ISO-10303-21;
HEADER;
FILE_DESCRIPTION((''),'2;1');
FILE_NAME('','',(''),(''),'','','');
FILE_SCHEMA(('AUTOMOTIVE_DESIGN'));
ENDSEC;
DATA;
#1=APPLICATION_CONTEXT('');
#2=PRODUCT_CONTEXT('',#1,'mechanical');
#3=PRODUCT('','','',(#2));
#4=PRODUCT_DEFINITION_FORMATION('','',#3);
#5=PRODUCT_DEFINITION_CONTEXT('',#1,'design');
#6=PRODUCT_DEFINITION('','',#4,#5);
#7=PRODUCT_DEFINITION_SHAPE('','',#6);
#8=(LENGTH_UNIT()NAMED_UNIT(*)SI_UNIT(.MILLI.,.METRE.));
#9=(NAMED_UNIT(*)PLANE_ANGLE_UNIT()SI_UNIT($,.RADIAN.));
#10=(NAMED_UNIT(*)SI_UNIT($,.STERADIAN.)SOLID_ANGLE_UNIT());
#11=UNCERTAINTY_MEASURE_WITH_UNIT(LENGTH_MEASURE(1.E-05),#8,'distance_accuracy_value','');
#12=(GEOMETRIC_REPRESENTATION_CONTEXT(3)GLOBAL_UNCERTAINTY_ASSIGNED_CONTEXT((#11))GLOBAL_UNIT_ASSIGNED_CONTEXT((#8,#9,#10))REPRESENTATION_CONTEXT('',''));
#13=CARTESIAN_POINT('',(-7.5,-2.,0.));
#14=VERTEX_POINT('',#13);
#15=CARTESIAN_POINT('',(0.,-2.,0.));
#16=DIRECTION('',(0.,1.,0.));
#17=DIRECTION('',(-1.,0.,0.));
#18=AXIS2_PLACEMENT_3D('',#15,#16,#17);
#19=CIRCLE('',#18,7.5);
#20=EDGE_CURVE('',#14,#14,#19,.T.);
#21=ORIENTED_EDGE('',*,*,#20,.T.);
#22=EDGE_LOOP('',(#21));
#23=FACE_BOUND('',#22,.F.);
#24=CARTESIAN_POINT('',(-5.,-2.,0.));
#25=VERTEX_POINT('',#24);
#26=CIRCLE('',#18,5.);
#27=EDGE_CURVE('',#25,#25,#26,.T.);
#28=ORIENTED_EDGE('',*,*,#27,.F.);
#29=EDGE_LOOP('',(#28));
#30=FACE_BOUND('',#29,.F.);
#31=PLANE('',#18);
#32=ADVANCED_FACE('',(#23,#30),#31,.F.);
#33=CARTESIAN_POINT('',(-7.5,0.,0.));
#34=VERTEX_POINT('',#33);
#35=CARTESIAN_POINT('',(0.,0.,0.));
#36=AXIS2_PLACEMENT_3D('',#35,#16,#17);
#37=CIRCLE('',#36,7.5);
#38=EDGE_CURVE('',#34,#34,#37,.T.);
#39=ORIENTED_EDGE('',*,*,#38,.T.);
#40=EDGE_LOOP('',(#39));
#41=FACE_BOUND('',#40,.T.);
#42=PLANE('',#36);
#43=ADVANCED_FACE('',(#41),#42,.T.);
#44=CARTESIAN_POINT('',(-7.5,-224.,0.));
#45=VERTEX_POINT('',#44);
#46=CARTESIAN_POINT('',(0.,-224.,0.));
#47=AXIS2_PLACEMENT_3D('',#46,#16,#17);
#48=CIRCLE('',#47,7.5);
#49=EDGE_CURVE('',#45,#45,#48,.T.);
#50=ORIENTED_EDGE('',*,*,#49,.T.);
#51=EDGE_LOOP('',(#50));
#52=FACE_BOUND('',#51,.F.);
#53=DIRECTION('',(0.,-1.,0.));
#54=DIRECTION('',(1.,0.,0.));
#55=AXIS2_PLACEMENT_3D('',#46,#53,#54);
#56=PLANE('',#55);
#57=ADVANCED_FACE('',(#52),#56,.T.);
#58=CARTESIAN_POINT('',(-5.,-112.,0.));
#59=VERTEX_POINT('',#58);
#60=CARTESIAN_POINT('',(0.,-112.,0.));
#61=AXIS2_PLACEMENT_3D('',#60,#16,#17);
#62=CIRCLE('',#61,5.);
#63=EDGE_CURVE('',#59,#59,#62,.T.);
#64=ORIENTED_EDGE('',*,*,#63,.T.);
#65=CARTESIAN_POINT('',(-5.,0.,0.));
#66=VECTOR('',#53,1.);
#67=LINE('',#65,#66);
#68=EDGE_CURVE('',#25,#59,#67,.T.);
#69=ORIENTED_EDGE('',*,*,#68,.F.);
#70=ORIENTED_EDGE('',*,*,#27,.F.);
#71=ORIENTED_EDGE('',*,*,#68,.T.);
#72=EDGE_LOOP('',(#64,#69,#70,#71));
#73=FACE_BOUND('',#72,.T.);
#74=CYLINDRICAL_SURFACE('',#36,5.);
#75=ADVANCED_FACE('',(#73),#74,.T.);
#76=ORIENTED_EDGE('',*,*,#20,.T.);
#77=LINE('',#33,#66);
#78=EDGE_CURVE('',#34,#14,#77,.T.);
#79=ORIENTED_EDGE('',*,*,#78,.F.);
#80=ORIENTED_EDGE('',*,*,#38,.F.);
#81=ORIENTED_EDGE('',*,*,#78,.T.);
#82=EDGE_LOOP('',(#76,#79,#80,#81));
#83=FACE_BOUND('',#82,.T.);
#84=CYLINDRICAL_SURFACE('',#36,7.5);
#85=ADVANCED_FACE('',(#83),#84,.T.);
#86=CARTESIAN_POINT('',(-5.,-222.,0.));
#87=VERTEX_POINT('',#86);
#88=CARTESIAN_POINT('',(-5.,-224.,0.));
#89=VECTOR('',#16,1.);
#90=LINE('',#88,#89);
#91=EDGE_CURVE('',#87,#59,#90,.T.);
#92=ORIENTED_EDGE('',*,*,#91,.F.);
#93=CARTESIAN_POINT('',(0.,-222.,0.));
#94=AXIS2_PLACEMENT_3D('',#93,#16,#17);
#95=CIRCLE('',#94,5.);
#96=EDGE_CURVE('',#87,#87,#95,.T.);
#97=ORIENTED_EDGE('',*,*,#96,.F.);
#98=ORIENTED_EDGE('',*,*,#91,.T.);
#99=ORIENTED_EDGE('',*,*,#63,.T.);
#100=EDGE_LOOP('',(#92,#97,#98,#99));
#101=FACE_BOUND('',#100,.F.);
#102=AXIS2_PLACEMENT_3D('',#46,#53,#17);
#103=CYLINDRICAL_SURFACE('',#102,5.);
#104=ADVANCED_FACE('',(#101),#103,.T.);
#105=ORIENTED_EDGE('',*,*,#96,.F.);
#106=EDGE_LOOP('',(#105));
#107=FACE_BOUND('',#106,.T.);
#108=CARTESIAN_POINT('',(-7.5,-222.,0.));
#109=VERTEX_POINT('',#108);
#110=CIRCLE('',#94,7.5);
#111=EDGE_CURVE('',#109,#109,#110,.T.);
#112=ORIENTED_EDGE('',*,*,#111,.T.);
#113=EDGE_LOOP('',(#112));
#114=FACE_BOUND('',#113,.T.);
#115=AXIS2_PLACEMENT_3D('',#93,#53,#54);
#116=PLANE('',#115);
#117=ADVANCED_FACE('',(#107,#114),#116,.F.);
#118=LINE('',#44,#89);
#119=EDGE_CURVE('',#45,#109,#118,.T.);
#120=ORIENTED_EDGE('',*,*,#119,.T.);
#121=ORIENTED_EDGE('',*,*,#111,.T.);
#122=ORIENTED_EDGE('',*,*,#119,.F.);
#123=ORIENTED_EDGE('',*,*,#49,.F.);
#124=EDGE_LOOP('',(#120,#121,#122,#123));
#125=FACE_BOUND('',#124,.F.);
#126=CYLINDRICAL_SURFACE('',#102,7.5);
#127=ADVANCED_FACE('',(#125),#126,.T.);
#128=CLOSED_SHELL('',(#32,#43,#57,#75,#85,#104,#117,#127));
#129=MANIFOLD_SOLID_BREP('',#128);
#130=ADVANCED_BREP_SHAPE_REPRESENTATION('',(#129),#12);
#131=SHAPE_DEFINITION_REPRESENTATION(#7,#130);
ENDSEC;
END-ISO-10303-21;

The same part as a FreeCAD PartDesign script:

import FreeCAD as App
import Part
import Sketcher

V = App.Vector

doc = App.newDocument("Part")
body = doc.addObject("PartDesign::Body", "Body")

# Sketch on XZ plane
sketch1 = body.newObject("Sketcher::SketchObject", "Sketch")
sketch1.AttachmentSupport = (doc.getObject("XZ_Plane"), [""])
sketch1.MapMode = "FlatFace"
sketch1.addGeometry(Part.Circle(V(0, 0, 0), V(0, 0, 1), 7.5), False)
sketch1.addGeometry(Part.Circle(V(0, 0, 0), V(0, 0, 1), 5), False)
sketch1.addConstraint(Sketcher.Constraint("Coincident", 0, 3, -1, 1))
sketch1.addConstraint(Sketcher.Constraint("Coincident", 1, 3, -1, 1))
sketch1.addConstraint(Sketcher.Constraint("Diameter", 0, 15.0))
sketch1.addConstraint(Sketcher.Constraint("Diameter", 1, 10.0))
pad1 = body.newObject("PartDesign::Pad", "Pad")
pad1.Profile = sketch1
pad1.Length = 2

# Sketch on XZ plane
sketch2 = body.newObject("Sketcher::SketchObject", "Sketch001")
sketch2.AttachmentSupport = (doc.getObject("XZ_Plane"), [""])
sketch2.MapMode = "FlatFace"
sketch2.addGeometry(Part.Circle(V(0, 0, 0), V(0, 0, 1), 5), False)
sketch2.addConstraint(Sketcher.Constraint("Coincident", 0, 3, -1, 1))
sketch2.addConstraint(Sketcher.Constraint("Diameter", 0, 10.0))
pad2 = body.newObject("PartDesign::Pad", "Pad001")
pad2.Profile = sketch2
pad2.Length = 112
doc.recompute()

datumplane = body.newObject("PartDesign::Plane", "DatumPlane")
datumplane.AttachmentSupport = (doc.getObject("XZ_Plane"), [""])
datumplane.MapMode = "FlatFace"
datumplane.AttachmentOffset = App.Placement(V(0, 0, 112), App.Rotation())
mirrored = body.newObject("PartDesign::Mirrored", "Mirrored")
mirrored.Originals = [pad2, pad1]
mirrored.MirrorPlane = (datumplane, [""])
body.Tip = mirrored

doc.recompute()
